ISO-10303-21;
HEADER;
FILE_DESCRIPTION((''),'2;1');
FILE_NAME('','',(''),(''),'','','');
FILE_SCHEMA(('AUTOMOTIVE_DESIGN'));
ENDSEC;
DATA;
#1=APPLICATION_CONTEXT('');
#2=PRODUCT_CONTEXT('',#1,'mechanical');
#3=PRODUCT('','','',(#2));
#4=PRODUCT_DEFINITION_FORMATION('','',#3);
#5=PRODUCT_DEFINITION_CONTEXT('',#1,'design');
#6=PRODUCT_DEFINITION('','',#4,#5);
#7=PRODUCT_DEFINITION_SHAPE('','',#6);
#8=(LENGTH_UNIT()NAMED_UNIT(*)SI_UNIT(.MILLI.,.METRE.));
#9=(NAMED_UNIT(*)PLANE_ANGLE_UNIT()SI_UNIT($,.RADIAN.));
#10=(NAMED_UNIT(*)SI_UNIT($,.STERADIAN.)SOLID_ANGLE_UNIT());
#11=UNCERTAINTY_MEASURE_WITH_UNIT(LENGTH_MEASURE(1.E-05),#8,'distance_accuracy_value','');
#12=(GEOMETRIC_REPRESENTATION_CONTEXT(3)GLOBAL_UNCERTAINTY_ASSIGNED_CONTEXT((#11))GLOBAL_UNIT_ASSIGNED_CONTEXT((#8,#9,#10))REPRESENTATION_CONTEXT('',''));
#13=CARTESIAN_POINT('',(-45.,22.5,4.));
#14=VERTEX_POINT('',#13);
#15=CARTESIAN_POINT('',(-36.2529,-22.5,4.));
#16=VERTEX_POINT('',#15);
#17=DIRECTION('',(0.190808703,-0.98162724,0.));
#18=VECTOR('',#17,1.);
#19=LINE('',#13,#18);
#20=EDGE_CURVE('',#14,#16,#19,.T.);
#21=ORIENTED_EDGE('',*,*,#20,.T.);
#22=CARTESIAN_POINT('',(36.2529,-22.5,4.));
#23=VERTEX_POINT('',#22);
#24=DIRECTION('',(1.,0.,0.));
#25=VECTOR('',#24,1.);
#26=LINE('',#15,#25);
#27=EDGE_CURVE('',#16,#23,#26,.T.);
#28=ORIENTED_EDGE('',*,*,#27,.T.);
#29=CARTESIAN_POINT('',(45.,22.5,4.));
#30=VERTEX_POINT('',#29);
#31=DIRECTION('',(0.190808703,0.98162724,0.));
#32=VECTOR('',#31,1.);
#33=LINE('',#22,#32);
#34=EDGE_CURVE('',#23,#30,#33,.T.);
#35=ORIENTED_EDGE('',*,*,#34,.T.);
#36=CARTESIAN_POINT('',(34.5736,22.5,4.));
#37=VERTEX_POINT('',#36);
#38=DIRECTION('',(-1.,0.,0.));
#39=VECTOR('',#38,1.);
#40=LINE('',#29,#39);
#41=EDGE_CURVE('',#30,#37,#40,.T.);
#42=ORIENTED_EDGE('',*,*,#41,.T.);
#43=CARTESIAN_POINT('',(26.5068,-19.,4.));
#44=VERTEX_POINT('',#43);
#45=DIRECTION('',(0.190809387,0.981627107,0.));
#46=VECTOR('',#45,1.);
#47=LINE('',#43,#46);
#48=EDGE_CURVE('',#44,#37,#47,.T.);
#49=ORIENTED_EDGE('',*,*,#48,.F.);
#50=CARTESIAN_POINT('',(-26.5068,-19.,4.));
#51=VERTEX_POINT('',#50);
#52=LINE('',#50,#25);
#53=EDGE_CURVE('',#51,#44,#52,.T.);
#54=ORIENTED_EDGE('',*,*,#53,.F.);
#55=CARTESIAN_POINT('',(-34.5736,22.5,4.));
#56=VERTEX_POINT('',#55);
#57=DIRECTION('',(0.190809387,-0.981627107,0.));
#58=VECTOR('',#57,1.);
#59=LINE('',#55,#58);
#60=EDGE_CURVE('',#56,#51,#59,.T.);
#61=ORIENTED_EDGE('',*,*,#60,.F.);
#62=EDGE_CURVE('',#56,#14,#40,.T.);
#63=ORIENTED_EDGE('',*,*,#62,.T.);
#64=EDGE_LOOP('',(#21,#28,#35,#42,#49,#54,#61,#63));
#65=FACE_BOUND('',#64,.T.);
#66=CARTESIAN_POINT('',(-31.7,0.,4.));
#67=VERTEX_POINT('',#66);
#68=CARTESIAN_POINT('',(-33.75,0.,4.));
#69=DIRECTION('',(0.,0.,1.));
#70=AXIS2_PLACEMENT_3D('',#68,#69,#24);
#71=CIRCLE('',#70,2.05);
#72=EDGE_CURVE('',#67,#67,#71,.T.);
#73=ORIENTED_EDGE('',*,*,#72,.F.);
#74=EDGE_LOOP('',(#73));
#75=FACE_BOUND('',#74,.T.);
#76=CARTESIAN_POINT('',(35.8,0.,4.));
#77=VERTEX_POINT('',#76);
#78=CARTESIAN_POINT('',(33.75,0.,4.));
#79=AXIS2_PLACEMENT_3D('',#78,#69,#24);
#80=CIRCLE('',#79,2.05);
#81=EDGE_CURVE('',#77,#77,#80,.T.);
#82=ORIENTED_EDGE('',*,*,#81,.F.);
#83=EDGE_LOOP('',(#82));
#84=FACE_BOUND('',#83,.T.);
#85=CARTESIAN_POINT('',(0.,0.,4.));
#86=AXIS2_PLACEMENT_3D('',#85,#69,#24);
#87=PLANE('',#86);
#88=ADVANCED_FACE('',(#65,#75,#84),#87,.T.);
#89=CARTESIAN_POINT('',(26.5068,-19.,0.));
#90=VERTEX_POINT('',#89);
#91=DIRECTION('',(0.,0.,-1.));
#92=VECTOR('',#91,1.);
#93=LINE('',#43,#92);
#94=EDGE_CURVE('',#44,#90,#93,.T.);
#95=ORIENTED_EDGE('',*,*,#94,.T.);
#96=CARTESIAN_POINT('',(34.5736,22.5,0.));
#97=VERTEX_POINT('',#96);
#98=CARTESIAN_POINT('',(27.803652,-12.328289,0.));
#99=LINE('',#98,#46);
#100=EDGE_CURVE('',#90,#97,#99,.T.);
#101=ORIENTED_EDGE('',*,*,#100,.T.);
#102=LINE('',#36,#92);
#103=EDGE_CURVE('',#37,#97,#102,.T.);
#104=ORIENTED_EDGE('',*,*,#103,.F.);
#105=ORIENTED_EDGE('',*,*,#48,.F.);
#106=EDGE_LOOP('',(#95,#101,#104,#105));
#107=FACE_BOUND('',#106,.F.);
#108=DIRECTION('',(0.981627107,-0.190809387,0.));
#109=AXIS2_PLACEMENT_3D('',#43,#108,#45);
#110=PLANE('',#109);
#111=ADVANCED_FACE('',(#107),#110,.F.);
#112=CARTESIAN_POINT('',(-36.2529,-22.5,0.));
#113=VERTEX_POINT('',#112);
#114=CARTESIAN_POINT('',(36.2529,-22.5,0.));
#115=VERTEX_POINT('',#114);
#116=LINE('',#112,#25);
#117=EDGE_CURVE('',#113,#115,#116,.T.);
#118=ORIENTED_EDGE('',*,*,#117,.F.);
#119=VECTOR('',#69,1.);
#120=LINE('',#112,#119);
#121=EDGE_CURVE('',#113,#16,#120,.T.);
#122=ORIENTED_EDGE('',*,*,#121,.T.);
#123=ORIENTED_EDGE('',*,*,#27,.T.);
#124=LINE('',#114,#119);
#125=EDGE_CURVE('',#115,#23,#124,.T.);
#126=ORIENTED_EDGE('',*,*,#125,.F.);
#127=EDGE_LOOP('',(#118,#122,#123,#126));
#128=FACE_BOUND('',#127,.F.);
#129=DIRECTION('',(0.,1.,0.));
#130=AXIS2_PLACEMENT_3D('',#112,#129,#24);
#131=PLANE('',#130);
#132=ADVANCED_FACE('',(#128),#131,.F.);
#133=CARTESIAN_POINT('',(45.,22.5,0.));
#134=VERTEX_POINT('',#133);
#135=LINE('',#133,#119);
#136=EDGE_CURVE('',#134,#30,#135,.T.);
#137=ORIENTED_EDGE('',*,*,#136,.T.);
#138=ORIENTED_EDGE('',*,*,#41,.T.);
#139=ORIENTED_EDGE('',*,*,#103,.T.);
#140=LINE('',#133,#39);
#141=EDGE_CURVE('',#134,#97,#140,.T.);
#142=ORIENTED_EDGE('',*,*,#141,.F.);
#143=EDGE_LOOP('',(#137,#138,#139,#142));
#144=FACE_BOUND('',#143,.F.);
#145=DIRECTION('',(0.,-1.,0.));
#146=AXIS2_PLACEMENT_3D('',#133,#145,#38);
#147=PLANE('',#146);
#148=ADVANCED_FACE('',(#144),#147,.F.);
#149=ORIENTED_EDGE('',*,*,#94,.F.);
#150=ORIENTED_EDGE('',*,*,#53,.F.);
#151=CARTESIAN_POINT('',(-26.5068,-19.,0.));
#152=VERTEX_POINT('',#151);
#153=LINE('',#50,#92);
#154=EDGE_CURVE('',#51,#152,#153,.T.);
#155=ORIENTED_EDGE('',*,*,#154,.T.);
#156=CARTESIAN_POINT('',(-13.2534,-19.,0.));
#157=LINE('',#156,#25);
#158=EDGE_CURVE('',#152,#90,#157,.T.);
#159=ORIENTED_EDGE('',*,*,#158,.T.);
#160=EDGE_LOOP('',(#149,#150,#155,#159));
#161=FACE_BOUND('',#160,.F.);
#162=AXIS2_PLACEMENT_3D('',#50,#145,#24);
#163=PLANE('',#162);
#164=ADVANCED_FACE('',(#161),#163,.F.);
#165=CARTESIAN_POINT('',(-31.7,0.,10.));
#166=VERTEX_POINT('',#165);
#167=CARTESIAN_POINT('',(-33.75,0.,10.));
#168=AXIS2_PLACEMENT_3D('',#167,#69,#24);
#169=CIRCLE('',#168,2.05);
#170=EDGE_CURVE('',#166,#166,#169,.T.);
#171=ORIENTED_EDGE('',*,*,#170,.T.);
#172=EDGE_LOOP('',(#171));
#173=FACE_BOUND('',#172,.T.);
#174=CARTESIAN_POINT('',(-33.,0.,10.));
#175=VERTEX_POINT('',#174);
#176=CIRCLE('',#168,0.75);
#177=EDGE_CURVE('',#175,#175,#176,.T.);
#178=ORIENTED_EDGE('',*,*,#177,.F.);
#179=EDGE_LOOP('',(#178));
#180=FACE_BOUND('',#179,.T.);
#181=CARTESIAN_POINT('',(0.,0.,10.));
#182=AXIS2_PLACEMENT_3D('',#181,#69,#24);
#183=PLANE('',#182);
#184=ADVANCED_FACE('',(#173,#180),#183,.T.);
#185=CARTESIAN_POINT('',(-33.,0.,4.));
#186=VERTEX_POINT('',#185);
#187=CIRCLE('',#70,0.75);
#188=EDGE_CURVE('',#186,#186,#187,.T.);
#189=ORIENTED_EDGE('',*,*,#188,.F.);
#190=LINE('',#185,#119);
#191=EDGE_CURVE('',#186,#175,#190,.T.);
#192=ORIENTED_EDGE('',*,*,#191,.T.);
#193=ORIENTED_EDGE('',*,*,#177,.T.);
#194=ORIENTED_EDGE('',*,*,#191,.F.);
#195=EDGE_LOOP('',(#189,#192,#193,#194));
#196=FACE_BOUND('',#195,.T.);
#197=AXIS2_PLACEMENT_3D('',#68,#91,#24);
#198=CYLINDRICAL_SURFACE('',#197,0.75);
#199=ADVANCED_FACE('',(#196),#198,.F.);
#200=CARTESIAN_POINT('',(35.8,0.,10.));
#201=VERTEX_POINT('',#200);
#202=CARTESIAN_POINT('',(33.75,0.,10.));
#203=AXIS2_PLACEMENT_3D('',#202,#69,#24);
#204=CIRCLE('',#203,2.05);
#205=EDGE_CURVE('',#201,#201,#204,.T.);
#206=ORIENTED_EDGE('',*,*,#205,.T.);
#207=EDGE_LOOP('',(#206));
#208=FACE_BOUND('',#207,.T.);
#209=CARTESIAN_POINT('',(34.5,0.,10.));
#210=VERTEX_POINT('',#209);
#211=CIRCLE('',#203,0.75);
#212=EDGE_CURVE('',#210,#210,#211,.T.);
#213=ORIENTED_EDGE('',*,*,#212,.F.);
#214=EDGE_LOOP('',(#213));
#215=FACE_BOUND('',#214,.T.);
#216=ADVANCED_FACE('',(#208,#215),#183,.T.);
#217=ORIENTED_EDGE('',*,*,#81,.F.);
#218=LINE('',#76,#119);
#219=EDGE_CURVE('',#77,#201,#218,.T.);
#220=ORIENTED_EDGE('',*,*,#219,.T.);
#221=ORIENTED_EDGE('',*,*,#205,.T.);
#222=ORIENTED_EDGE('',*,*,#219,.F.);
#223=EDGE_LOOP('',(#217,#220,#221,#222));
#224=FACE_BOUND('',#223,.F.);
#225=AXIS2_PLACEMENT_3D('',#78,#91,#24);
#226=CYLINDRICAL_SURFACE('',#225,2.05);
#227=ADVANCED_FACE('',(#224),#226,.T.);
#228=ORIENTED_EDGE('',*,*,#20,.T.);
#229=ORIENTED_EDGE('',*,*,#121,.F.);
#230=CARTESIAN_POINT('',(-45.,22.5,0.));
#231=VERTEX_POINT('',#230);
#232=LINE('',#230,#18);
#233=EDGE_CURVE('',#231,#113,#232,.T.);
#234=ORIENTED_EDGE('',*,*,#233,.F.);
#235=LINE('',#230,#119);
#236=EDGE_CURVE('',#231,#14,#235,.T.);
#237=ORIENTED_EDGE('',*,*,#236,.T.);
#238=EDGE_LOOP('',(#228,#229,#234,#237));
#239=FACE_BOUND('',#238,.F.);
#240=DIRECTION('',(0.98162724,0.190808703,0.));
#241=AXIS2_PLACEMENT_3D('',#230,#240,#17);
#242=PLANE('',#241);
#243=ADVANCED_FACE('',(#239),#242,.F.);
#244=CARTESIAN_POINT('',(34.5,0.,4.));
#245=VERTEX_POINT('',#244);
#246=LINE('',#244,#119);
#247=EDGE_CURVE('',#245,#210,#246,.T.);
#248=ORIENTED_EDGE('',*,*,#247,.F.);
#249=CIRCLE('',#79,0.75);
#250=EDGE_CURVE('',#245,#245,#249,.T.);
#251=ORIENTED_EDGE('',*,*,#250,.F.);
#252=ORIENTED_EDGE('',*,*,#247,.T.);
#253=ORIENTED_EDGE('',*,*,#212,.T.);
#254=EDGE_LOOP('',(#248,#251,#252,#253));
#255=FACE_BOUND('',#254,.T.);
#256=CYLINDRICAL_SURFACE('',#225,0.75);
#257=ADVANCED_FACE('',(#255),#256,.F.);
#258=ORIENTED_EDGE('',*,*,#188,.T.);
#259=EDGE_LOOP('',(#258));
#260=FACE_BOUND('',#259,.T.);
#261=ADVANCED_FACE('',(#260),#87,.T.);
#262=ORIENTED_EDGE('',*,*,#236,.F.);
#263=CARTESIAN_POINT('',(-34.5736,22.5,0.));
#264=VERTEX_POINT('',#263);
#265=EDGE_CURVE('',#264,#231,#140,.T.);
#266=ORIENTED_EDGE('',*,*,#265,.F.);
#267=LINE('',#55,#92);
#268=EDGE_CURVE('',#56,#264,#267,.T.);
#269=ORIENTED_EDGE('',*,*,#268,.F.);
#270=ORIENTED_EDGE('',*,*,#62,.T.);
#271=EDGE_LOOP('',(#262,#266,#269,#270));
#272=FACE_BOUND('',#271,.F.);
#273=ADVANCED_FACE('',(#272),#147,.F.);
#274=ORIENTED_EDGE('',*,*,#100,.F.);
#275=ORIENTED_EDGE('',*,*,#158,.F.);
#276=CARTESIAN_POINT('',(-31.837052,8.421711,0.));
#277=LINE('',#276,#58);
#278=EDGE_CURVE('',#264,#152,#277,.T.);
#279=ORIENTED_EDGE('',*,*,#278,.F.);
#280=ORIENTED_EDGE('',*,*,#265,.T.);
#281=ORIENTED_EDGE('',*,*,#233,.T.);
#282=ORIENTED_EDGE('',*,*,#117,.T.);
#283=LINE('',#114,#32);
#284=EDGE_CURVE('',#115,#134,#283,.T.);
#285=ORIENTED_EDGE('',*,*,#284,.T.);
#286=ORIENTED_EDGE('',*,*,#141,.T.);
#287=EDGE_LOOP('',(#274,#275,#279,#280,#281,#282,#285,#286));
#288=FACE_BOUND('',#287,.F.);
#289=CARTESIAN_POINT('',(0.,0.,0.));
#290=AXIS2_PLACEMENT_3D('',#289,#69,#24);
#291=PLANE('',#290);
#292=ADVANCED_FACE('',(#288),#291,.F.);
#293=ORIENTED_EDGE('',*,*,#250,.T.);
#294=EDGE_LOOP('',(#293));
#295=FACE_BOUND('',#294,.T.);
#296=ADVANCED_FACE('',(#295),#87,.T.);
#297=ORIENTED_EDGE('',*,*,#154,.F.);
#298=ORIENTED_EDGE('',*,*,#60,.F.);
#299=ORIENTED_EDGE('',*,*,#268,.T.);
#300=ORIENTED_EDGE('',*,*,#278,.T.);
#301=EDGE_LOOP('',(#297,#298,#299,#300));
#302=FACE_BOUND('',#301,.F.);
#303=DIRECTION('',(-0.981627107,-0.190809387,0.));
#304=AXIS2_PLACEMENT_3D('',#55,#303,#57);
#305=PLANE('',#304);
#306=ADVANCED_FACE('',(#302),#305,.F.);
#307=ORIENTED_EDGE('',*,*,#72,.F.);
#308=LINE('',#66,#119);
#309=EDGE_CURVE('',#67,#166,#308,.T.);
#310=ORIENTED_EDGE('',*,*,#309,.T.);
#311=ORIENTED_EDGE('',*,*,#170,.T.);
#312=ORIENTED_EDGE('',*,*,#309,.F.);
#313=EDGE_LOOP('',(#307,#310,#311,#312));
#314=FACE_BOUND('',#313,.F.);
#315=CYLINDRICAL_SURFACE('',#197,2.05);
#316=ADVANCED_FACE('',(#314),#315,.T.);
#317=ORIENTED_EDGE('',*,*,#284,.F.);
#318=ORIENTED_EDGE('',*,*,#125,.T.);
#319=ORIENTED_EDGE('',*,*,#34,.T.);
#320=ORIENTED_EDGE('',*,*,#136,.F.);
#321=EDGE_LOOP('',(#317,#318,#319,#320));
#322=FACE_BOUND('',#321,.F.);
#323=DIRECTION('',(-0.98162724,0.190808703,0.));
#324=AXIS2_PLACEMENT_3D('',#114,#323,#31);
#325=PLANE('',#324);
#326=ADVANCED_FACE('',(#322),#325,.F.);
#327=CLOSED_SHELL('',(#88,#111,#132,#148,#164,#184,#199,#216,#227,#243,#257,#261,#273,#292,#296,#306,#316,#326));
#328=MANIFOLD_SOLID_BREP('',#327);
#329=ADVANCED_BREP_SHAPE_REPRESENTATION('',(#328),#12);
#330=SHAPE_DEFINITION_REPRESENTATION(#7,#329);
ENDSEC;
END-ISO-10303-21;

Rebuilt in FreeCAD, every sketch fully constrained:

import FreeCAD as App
import Part
import Sketcher
from FreeCAD import Vector
Q = App.Units.Quantity

doc = App.newDocument("Part")
body = doc.addObject("PartDesign::Body", "Body")

# Sketch on XY plane
sketch1 = doc.addObject("Sketcher::SketchObject", "Sketch")
body.addObject(sketch1)
sketch1.AttachmentSupport = (doc.XY_Plane, [""])
sketch1.MapMode = "FlatFace"
sketch1.addGeometry(Part.LineSegment(Vector(-45, 22, 0), Vector(-36, -22, 0)), False)
sketch1.addGeometry(Part.LineSegment(Vector(-36, -22, 0), Vector(36, -22, 0)), False)
sketch1.addGeometry(Part.LineSegment(Vector(36, -22, 0), Vector(45, 22, 0)), False)
sketch1.addGeometry(Part.LineSegment(Vector(45, 22, 0), Vector(-45, 22, 0)), False)
sketch1.addConstraint(Sketcher.Constraint("Coincident", 0, 2, 1, 1))
sketch1.addConstraint(Sketcher.Constraint("Coincident", 1, 2, 2, 1))
sketch1.addConstraint(Sketcher.Constraint("Coincident", 2, 2, 3, 1))
sketch1.addConstraint(Sketcher.Constraint("Coincident", 3, 2, 0, 1))
sketch1.addConstraint(Sketcher.Constraint("Horizontal", 1))
sketch1.addConstraint(Sketcher.Constraint("Horizontal", 3))
sketch1.addConstraint(Sketcher.Constraint("Equal", 0, 2))
sketch1.addConstraint(Sketcher.Constraint("DistanceX", 3, 2, 3, 1, 90.0))
sketch1.addConstraint(Sketcher.Constraint("DistanceX", -1, 1, 2, 2, 45.0))
sketch1.addConstraint(Sketcher.Constraint("DistanceY", 1, 2, 2, 2, 45.0))
sketch1.addConstraint(Sketcher.Constraint("Angle", 0, Q("-79 deg")))
sketch1.addConstraint(Sketcher.Constraint("DistanceY", 0, 2, -1, 1, 22.5))
pad1 = doc.addObject("PartDesign::Pad", "Pad")
body.addObject(pad1)
pad1.Profile = sketch1
pad1.Length = 4

# Sketch on XY plane
sketch2 = doc.addObject("Sketcher::SketchObject", "Sketch001")
body.addObject(sketch2)
sketch2.AttachmentSupport = (doc.XY_Plane, [""])
sketch2.MapMode = "FlatFace"
sketch2.AttachmentOffset = App.Placement(Vector(0, 0, 4), App.Rotation())
sketch2.addGeometry(Part.Circle(Vector(33.8, 0, 0), Vector(0, 0, 1), 2), False)
sketch2.addGeometry(Part.Circle(Vector(33.8, 0, 0), Vector(0, 0, 1), 0.8), False)
sketch2.addGeometry(Part.Circle(Vector(-33.8, 0, 0), Vector(0, 0, 1), 2), False)
sketch2.addGeometry(Part.Circle(Vector(-33.8, 0, 0), Vector(0, 0, 1), 0.8), False)
sketch2.addConstraint(Sketcher.Constraint("Coincident", 1, 3, 0, 3))
sketch2.addConstraint(Sketcher.Constraint("Coincident", 3, 3, 2, 3))
sketch2.addConstraint(Sketcher.Constraint("Equal", 0, 2))
sketch2.addConstraint(Sketcher.Constraint("Equal", 1, 3))
sketch2.addConstraint(Sketcher.Constraint("Symmetric", 0, 3, 2, 3, -1, 1))
sketch2.addConstraint(Sketcher.Constraint("PointOnObject", 0, 3, -1))
sketch2.addConstraint(Sketcher.Constraint("Diameter", 0, 4.1))
sketch2.addConstraint(Sketcher.Constraint("Diameter", 1, 1.5))
sketch2.addConstraint(Sketcher.Constraint("DistanceX", 2, 3, 0, 3, 67.5))
pad2 = doc.addObject("PartDesign::Pad", "Pad001")
body.addObject(pad2)
pad2.Profile = sketch2
pad2.Length = 6

# Sketch on XY plane
sketch3 = doc.addObject("Sketcher::SketchObject", "Sketch002")
body.addObject(sketch3)
sketch3.AttachmentSupport = (doc.XY_Plane, [""])
sketch3.MapMode = "FlatFace"
sketch3.AttachmentOffset = App.Placement(Vector(0, 0, 4), App.Rotation())
sketch3.addGeometry(Part.LineSegment(Vector(-35, 22, 0), Vector(-27, -19, 0)), False)
sketch3.addGeometry(Part.LineSegment(Vector(-27, -19, 0), Vector(27, -19, 0)), False)
sketch3.addGeometry(Part.LineSegment(Vector(27, -19, 0), Vector(35, 22, 0)), False)
sketch3.addGeometry(Part.LineSegment(Vector(35, 22, 0), Vector(-35, 22, 0)), False)
sketch3.addConstraint(Sketcher.Constraint("Coincident", 0, 2, 1, 1))
sketch3.addConstraint(Sketcher.Constraint("Coincident", 1, 2, 2, 1))
sketch3.addConstraint(Sketcher.Constraint("Coincident", 2, 2, 3, 1))
sketch3.addConstraint(Sketcher.Constraint("Coincident", 3, 2, 0, 1))
sketch3.addConstraint(Sketcher.Constraint("Horizontal", 1))
sketch3.addConstraint(Sketcher.Constraint("Horizontal", 3))
sketch3.addConstraint(Sketcher.Constraint("Equal", 0, 2))
sketch3.addConstraint(Sketcher.Constraint("DistanceY", 0, 2, -1, 1, 19.0))
sketch3.addConstraint(Sketcher.Constraint("Angle", 0, Q("-79 deg")))
sketch3.addConstraint(Sketcher.Constraint("DistanceY", -1, 1, 2, 2, 22.5))
sketch3.addConstraint(Sketcher.Constraint("DistanceX", 1, 1, 1, 2, 53.0136))
sketch3.addConstraint(Sketcher.Constraint("DistanceX", 0, 2, -1, 1, 26.5068))
pocket1 = doc.addObject("PartDesign::Pocket", "Pocket")
body.addObject(pocket1)
pocket1.Profile = sketch3
pocket1.Type = "ThroughAll"

doc.recompute()
